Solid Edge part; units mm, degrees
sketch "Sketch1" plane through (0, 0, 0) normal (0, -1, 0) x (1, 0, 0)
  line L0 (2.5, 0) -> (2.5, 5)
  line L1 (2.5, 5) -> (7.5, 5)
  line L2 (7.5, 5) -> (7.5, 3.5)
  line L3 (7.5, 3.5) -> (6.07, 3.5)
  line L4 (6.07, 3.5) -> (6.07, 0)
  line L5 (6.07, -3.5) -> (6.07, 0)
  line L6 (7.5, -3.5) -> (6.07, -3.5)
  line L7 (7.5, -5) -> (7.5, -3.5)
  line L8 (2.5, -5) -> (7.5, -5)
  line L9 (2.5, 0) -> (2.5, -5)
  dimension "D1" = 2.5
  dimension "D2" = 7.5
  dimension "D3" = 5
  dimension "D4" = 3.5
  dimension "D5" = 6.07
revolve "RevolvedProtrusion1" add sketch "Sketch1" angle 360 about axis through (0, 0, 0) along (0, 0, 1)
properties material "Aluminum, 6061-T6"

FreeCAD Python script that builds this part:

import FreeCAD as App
import Part
import Sketcher
from FreeCAD import Vector

doc = App.newDocument("Part")
params = doc.addObject("Spreadsheet::Sheet", "Params")
for row, (alias, value) in enumerate([
    ("sketch1_width", "5 mm"),
    ("sketch1_height", "10 mm"),
    ("sketch1_height2", "7 mm"),
    ("revolution_angle", "360 deg"),
], start=1):
    params.set(f"A{row}", alias)
    params.set(f"B{row}", "=" + value)
    params.setAlias(f"B{row}", alias)

body = doc.addObject("PartDesign::Body", "Body")

# Sketch on XZ plane
sketch1 = body.newObject("Sketcher::SketchObject", "Sketch")
sketch1.AttachmentSupport = (doc.getObject("XZ_Plane"), [""])
sketch1.MapMode = "FlatFace"
sketch1.addGeometry(Part.LineSegment(Vector(2.5, 5, 0), Vector(2.5, -5, 0)), False)
sketch1.addGeometry(Part.LineSegment(Vector(2.5, -5, 0), Vector(7.5, -5, 0)), False)
sketch1.addGeometry(Part.LineSegment(Vector(7.5, -5, 0), Vector(7.5, -3.5, 0)), False)
sketch1.addGeometry(Part.LineSegment(Vector(7.5, -3.5, 0), Vector(6.1, -3.5, 0)), False)
sketch1.addGeometry(Part.LineSegment(Vector(6.1, -3.5, 0), Vector(6.1, 3.5, 0)), False)
sketch1.addGeometry(Part.LineSegment(Vector(6.1, 3.5, 0), Vector(7.5, 3.5, 0)), False)
sketch1.addGeometry(Part.LineSegment(Vector(7.5, 3.5, 0), Vector(7.5, 5, 0)), False)
sketch1.addGeometry(Part.LineSegment(Vector(7.5, 5, 0), Vector(2.5, 5, 0)), False)
sketch1.addConstraint(Sketcher.Constraint("Coincident", 0, 2, 1, 1))
sketch1.addConstraint(Sketcher.Constraint("Coincident", 1, 2, 2, 1))
sketch1.addConstraint(Sketcher.Constraint("Coincident", 2, 2, 3, 1))
sketch1.addConstraint(Sketcher.Constraint("Coincident", 3, 2, 4, 1))
sketch1.addConstraint(Sketcher.Constraint("Coincident", 4, 2, 5, 1))
sketch1.addConstraint(Sketcher.Constraint("Coincident", 5, 2, 6, 1))
sketch1.addConstraint(Sketcher.Constraint("Coincident", 6, 2, 7, 1))
sketch1.addConstraint(Sketcher.Constraint("Coincident", 7, 2, 0, 1))
sketch1.addConstraint(Sketcher.Constraint("Vertical", 0))
sketch1.addConstraint(Sketcher.Constraint("Horizontal", 1))
sketch1.addConstraint(Sketcher.Constraint("Vertical", 2))
sketch1.addConstraint(Sketcher.Constraint("Horizontal", 3))
sketch1.addConstraint(Sketcher.Constraint("Vertical", 4))
sketch1.addConstraint(Sketcher.Constraint("Horizontal", 5))
sketch1.addConstraint(Sketcher.Constraint("Vertical", 6))
sketch1.addConstraint(Sketcher.Constraint("Horizontal", 7))
sketch1.addConstraint(Sketcher.Constraint("Symmetric", 2, 2, 5, 2, -1))
sketch1.addConstraint(Sketcher.Constraint("Equal", 2, 6))
sketch1.addConstraint(Sketcher.Constraint("DistanceX", -1, 1, 0, 2, 2.5))
sketch1.addConstraint(Sketcher.Constraint("DistanceX", 1, 1, 1, 2, 5.0))
sketch1.addConstraint(Sketcher.Constraint("DistanceY", 0, 2, 0, 1, 10.0))
sketch1.addConstraint(Sketcher.Constraint("DistanceY", 4, 1, 4, 2, 7.0))
sketch1.addConstraint(Sketcher.Constraint("DistanceX", -1, 1, 3, 2, 6.07))
sketch1.setExpression("Constraints[19]", "Params.sketch1_width")
sketch1.setExpression("Constraints[20]", "Params.sketch1_height")
sketch1.setExpression("Constraints[21]", "Params.sketch1_height2")
revolution = body.newObject("PartDesign::Revolution", "Revolution")
revolution.Profile = sketch1
revolution.ReferenceAxis = (sketch1, ["V_Axis"])
revolution.setExpression("Angle", "Params.revolution_angle")

doc.recompute()
